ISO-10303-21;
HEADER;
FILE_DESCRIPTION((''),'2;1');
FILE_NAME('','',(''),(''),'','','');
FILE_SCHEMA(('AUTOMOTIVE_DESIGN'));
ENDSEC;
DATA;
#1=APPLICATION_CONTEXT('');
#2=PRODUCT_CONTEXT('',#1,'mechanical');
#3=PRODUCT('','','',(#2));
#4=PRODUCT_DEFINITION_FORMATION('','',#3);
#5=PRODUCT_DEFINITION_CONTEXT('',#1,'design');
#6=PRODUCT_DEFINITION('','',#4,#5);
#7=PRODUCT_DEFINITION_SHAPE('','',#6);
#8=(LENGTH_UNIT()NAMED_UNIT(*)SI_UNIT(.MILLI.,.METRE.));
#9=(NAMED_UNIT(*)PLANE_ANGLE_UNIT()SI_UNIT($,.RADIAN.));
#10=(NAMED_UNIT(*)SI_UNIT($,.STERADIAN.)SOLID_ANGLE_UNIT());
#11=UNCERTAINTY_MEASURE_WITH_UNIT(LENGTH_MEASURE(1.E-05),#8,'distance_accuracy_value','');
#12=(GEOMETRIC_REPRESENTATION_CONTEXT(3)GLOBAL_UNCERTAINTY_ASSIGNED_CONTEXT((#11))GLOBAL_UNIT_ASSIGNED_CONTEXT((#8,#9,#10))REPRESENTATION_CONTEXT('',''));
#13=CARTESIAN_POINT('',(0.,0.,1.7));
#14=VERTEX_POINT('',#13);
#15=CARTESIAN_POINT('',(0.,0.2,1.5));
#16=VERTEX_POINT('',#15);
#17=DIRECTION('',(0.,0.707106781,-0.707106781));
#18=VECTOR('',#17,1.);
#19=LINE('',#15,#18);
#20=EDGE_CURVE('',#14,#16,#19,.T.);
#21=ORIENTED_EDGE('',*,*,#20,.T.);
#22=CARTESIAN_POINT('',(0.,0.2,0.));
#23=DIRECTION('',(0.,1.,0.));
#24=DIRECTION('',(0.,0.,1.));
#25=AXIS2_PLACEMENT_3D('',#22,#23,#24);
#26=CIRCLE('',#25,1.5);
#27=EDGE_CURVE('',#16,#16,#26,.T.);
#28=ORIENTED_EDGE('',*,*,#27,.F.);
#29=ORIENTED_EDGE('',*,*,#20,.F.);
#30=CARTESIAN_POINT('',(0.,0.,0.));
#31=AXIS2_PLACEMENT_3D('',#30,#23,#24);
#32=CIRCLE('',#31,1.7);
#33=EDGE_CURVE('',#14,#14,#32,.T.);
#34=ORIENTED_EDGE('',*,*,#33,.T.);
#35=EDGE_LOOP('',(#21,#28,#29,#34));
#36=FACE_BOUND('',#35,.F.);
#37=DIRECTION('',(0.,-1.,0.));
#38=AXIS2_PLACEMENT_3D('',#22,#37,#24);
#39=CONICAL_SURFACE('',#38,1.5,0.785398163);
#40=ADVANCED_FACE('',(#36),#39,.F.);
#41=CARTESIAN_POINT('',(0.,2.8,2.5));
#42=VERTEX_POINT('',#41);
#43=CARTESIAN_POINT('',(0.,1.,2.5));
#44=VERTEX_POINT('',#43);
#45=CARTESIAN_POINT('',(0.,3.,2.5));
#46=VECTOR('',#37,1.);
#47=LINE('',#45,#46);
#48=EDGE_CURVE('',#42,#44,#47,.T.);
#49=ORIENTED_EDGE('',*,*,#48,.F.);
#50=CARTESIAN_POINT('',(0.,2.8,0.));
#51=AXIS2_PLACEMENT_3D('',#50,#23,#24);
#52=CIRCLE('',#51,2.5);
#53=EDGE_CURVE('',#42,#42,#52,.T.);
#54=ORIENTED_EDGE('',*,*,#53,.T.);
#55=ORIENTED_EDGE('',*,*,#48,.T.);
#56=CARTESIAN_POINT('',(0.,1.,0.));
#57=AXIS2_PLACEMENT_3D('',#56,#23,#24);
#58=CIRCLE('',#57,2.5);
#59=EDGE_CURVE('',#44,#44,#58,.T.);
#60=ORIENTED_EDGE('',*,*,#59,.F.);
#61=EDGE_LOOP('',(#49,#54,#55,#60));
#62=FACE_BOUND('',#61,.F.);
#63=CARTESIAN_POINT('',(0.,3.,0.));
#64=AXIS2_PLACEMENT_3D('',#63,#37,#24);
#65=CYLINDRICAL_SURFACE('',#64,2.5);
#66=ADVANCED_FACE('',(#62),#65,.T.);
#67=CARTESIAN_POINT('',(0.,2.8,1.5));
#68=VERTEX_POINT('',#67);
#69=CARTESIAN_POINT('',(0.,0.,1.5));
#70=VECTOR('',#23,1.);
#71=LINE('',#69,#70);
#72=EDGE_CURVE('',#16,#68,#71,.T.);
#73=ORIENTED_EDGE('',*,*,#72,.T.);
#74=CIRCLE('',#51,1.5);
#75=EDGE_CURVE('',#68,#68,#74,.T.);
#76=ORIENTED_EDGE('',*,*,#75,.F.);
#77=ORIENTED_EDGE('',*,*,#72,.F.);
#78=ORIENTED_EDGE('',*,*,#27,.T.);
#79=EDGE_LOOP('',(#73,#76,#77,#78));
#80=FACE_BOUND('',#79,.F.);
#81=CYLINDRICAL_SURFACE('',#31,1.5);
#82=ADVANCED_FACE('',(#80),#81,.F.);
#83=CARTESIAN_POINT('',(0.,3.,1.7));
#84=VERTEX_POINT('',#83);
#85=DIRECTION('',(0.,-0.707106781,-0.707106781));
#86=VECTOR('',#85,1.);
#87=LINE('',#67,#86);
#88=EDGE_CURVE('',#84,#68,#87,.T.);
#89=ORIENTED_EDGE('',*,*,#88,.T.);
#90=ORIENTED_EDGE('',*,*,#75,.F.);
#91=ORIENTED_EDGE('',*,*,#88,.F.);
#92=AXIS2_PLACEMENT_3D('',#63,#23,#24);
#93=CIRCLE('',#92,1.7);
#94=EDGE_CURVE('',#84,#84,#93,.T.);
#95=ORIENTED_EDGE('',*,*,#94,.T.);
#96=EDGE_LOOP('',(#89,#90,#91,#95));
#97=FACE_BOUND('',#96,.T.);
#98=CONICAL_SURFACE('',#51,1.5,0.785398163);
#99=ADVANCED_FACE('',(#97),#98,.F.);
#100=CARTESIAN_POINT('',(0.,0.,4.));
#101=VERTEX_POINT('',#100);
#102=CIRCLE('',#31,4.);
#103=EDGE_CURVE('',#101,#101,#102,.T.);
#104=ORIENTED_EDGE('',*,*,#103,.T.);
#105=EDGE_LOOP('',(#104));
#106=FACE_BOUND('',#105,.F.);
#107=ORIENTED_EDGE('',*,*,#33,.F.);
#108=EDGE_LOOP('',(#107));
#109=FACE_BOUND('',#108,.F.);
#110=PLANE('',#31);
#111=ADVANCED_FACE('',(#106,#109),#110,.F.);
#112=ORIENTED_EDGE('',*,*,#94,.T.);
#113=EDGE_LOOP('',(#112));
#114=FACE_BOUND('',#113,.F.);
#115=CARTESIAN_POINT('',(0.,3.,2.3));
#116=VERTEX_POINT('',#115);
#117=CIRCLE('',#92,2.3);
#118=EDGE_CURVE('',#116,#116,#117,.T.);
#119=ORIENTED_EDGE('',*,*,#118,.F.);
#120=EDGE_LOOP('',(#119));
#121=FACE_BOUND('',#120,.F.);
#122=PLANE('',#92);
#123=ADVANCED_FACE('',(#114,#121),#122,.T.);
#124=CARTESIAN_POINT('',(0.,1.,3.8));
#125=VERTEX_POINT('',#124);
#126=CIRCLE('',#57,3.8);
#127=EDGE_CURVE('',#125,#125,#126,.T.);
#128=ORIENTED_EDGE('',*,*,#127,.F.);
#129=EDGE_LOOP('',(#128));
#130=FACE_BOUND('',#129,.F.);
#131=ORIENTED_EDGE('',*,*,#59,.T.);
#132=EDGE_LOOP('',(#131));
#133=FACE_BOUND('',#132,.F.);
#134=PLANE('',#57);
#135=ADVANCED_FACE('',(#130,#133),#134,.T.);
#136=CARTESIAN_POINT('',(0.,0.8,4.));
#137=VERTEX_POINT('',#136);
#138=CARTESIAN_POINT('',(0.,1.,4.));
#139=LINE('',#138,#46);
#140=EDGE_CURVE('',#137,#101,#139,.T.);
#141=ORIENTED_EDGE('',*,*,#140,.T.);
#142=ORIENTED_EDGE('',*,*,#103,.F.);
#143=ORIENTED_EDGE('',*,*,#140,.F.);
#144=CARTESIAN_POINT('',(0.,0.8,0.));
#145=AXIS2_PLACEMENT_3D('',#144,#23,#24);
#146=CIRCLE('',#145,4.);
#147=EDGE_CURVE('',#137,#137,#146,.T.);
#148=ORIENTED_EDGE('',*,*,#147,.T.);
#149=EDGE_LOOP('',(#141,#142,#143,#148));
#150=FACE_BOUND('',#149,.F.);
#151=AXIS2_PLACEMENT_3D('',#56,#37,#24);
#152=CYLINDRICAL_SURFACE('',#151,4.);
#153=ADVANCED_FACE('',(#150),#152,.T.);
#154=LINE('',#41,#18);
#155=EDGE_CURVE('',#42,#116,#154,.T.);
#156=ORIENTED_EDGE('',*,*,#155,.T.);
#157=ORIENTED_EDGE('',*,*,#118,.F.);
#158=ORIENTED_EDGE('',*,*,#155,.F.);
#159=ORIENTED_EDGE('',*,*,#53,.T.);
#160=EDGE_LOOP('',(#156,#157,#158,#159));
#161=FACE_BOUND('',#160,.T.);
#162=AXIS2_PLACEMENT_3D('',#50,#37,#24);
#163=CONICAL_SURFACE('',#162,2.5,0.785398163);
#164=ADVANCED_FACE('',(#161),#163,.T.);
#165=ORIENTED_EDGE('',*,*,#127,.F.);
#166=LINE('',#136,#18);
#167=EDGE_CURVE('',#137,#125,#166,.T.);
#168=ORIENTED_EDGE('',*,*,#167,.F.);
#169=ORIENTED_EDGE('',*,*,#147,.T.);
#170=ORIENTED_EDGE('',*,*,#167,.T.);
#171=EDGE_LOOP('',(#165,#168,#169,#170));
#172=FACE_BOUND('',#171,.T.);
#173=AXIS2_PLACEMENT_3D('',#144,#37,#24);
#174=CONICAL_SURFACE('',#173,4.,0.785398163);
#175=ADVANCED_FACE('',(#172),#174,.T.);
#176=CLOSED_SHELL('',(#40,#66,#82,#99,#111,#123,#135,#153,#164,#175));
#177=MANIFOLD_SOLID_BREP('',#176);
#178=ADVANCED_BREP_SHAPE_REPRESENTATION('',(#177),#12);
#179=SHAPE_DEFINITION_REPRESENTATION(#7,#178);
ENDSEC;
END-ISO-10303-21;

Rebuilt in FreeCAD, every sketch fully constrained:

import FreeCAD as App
import Part
import Sketcher

V = App.Vector
Q = App.Units.Quantity


def edges_at(feature, points):
    """Names of the edges that pass closest to the given points."""
    edges = feature.Shape.Edges
    near = lambda p: min(range(len(edges)), key=lambda i: edges[i].distToShape(Part.Vertex(*p))[0])
    return sorted({f"Edge{near(p) + 1}" for p in points})

doc = App.newDocument("Part")
body = doc.addObject("PartDesign::Body", "Body")

# Sketch on YZ plane
sketch1 = body.newObject("Sketcher::SketchObject", "Sketch")
sketch1.AttachmentSupport = (doc.getObject("YZ_Plane"), [""])
sketch1.MapMode = "FlatFace"
sketch1.addGeometry(Part.LineSegment(V(0, 4, 0), V(0, 1.5, 0)), False)
sketch1.addGeometry(Part.LineSegment(V(0, 1.5, 0), V(3, 1.5, 0)), False)
sketch1.addGeometry(Part.LineSegment(V(3, 1.5, 0), V(3, 2.5, 0)), False)
sketch1.addGeometry(Part.LineSegment(V(3, 2.5, 0), V(1, 2.5, 0)), False)
sketch1.addGeometry(Part.LineSegment(V(1, 2.5, 0), V(1, 4, 0)), False)
sketch1.addGeometry(Part.LineSegment(V(1, 4, 0), V(0, 4, 0)), False)
sketch1.addConstraint(Sketcher.Constraint("Coincident", 0, 2, 1, 1))
sketch1.addConstraint(Sketcher.Constraint("Coincident", 1, 2, 2, 1))
sketch1.addConstraint(Sketcher.Constraint("Coincident", 2, 2, 3, 1))
sketch1.addConstraint(Sketcher.Constraint("Coincident", 3, 2, 4, 1))
sketch1.addConstraint(Sketcher.Constraint("Coincident", 4, 2, 5, 1))
sketch1.addConstraint(Sketcher.Constraint("Coincident", 5, 2, 0, 1))
sketch1.addConstraint(Sketcher.Constraint("Vertical", 0))
sketch1.addConstraint(Sketcher.Constraint("Horizontal", 1))
sketch1.addConstraint(Sketcher.Constraint("Vertical", 2))
sketch1.addConstraint(Sketcher.Constraint("Horizontal", 3))
sketch1.addConstraint(Sketcher.Constraint("Vertical", 4))
sketch1.addConstraint(Sketcher.Constraint("Horizontal", 5))
sketch1.addConstraint(Sketcher.Constraint("PointOnObject", 0, 2, -2))
sketch1.addConstraint(Sketcher.Constraint("Equal", 5, 2))
sketch1.addConstraint(Sketcher.Constraint("DistanceX", 1, 1, 1, 2, Q("3 mm")))
sketch1.addConstraint(Sketcher.Constraint("DistanceX", 5, 2, 5, 1, Q("1 mm")))
sketch1.addConstraint(Sketcher.Constraint("DistanceY", 0, 2, 0, 1, Q("2.5 mm")))
sketch1.addConstraint(Sketcher.Constraint("DistanceY", -1, 1, 4, 2, Q("4 mm")))
revolution = body.newObject("PartDesign::Revolution", "Revolution")
revolution.Profile = sketch1
revolution.ReferenceAxis = (sketch1, ["H_Axis"])
revolution.Angle = 360
doc.recompute()

chamfer = body.newObject("PartDesign::Chamfer", "Chamfer")
chamfer.Base = (revolution, edges_at(revolution, [
    (0, 3, -2.5),
    (0, 3, -1.5),
    (0, 1, -4),
    (0, 0, -1.5),
]))
chamfer.Size = 0.2

doc.recompute()
